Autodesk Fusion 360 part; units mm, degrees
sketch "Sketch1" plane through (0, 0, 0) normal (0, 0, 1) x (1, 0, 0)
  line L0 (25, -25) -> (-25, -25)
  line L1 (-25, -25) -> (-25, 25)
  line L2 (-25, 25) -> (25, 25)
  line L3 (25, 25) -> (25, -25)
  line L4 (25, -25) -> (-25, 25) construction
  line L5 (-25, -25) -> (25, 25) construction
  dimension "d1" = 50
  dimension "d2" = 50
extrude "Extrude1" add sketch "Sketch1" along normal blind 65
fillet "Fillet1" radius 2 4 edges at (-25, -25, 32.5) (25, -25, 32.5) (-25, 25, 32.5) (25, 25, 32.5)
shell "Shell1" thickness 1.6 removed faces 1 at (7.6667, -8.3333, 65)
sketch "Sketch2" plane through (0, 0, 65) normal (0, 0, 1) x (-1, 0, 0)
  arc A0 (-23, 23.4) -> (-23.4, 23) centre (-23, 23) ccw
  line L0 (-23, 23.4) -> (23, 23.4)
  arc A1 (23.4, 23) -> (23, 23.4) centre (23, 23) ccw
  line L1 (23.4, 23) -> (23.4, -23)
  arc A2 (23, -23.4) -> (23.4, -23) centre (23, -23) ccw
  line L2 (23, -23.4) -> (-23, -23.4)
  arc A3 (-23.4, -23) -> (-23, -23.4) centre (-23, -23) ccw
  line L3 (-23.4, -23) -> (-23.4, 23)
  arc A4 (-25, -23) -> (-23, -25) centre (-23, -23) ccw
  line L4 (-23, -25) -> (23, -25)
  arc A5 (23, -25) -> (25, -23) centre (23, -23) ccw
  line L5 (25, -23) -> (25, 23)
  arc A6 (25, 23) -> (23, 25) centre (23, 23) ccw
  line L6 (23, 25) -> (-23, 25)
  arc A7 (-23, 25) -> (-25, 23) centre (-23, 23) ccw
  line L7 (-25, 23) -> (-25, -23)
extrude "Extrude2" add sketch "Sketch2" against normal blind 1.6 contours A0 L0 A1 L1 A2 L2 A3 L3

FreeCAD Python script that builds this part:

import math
import FreeCAD as App
import Part
import Sketcher
Q = App.Units.Quantity


def edges_at(feature, points):
    """Names of the edges that pass closest to the given points."""
    edges = feature.Shape.Edges
    near = lambda p: min(range(len(edges)), key=lambda i: edges[i].distToShape(Part.Vertex(*p))[0])
    return sorted({f"Edge{near(p) + 1}" for p in points})


def faces_at(feature, points):
    """Names of the faces that lie closest to the given points."""
    faces = feature.Shape.Faces
    near = lambda p: min(range(len(faces)), key=lambda i: faces[i].distToShape(Part.Vertex(*p))[0])
    return sorted({f"Face{near(p) + 1}" for p in points})

doc = App.newDocument("Part")
body = doc.addObject("PartDesign::Body", "Body")

# Sketch on XY plane
sketch1 = body.newObject("Sketcher::SketchObject", "Sketch")
sketch1.AttachmentSupport = (doc.getObject("XY_Plane"), [""])
sketch1.MapMode = "FlatFace"
sketch1.addGeometry([
    Part.LineSegment(App.Vector(-25, -25, 0), App.Vector(25, -25, 0)),
    Part.LineSegment(App.Vector(25, -25, 0), App.Vector(25, 25, 0)),
    Part.LineSegment(App.Vector(25, 25, 0), App.Vector(-25, 25, 0)),
    Part.LineSegment(App.Vector(-25, 25, 0), App.Vector(-25, -25, 0)),
], False)
sketch1.addConstraint([
    Sketcher.Constraint("Coincident", 0, 2, 1, 1),
    Sketcher.Constraint("Coincident", 1, 2, 2, 1),
    Sketcher.Constraint("Coincident", 2, 2, 3, 1),
    Sketcher.Constraint("Coincident", 3, 2, 0, 1),
    Sketcher.Constraint("Horizontal", 0),
    Sketcher.Constraint("Vertical", 1),
    Sketcher.Constraint("Horizontal", 2),
    Sketcher.Constraint("Vertical", 3),
    Sketcher.Constraint("Symmetric", 0, 2, 2, 2, -1, 1),
    Sketcher.Constraint("Equal", 2, 1),
    Sketcher.Constraint("DistanceX", 0, 1, 0, 2, Q("50 mm")),
])
pad1 = body.newObject("PartDesign::Pad", "Pad")
pad1.Profile = sketch1
pad1.Length = 65
doc.recompute()

fillet = body.newObject("PartDesign::Fillet", "Fillet")
fillet.Base = (pad1, edges_at(pad1, [
    (-25, -25, 32.5),
    (25, -25, 32.5),
    (-25, 25, 32.5),
    (25, 25, 32.5),
]))
fillet.Radius = 2
doc.recompute()

thickness = body.newObject("PartDesign::Thickness", "Thickness")
thickness.Base = (fillet, faces_at(fillet, [(7.667, -8.333, 65)]))
thickness.Value = 1.6
thickness.Reversed = True
thickness.Join = "Intersection"

# Sketch on XY plane
sketch2 = body.newObject("Sketcher::SketchObject", "Sketch001")
sketch2.AttachmentSupport = (doc.getObject("XY_Plane"), [""])
sketch2.MapMode = "FlatFace"
sketch2.AttachmentOffset = App.Placement(App.Vector(0, 0, 65), App.Rotation())
sketch2.addGeometry([
    Part.LineSegment(App.Vector(-23, -23.4, 0), App.Vector(23, -23.4, 0)),  # 0
    Part.ArcOfCircle(Part.Circle(App.Vector(23, -23, 0), App.Vector(0, 0, 1), 0.4), math.radians(-90), math.radians(0)),  # 1
    Part.LineSegment(App.Vector(23.4, -23, 0), App.Vector(23.4, 23, 0)),  # 2
    Part.ArcOfCircle(Part.Circle(App.Vector(23, 23, 0), App.Vector(0, 0, 1), 0.4), math.radians(0), math.radians(90)),  # 3
    Part.LineSegment(App.Vector(23, 23.4, 0), App.Vector(-23, 23.4, 0)),  # 4
    Part.ArcOfCircle(Part.Circle(App.Vector(-23, 23, 0), App.Vector(0, 0, 1), 0.4), math.radians(90), math.radians(180)),  # 5
    Part.LineSegment(App.Vector(-23.4, 23, 0), App.Vector(-23.4, -23, 0)),  # 6
    Part.ArcOfCircle(Part.Circle(App.Vector(-23, -23, 0), App.Vector(0, 0, 1), 0.4), math.radians(180), math.radians(270)),  # 7
], False)
sketch2.addConstraint([
    Sketcher.Constraint("Tangent", 0, 2, 1, 1),
    Sketcher.Constraint("Tangent", 1, 2, 2, 1),
    Sketcher.Constraint("Tangent", 2, 2, 3, 1),
    Sketcher.Constraint("Tangent", 3, 2, 4, 1),
    Sketcher.Constraint("Tangent", 4, 2, 5, 1),
    Sketcher.Constraint("Tangent", 5, 2, 6, 1),
    Sketcher.Constraint("Tangent", 6, 2, 7, 1),
    Sketcher.Constraint("Tangent", 7, 2, 0, 1),
    Sketcher.Constraint("Horizontal", 0),
    Sketcher.Constraint("Vertical", 2),
    Sketcher.Constraint("Horizontal", 4),
    Sketcher.Constraint("Vertical", 6),
    Sketcher.Constraint("Equal", 1, 3),
    Sketcher.Constraint("Equal", 3, 5),
    Sketcher.Constraint("Equal", 5, 7),
    Sketcher.Constraint("Symmetric", 1, 3, 5, 3, -1, 1),
    Sketcher.Constraint("Equal", 4, 2),
    Sketcher.Constraint("Radius", 1, Q("0.4 mm")),
    Sketcher.Constraint("DistanceX", 0, 1, 0, 2, Q("46 mm")),
])
pad2 = body.newObject("PartDesign::Pad", "Pad001")
pad2.Profile = sketch2
pad2.Length = 1.6
pad2.Reversed = True

doc.recompute()
